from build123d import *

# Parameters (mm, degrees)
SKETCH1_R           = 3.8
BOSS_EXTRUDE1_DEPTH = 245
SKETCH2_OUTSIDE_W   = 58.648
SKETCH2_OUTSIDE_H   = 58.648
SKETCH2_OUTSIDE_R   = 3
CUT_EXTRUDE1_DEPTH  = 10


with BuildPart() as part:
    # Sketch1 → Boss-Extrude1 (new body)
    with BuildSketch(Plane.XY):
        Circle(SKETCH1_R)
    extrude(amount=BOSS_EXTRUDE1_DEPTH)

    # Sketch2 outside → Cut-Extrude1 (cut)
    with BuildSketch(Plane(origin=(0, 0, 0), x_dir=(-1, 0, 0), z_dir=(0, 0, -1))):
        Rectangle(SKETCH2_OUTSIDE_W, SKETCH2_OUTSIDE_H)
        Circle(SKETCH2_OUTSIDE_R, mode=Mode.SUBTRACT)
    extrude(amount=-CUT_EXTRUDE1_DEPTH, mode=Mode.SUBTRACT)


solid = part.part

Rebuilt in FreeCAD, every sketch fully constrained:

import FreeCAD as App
import Part
import Sketcher

V = App.Vector

doc = App.newDocument("Part")
body = doc.addObject("PartDesign::Body", "Body")

sketch1 = doc.addObject("Sketcher::SketchObject", "Sketch")
body.addObject(sketch1)
sketch1.AttachmentSupport = (doc.XY_Plane, [""])
sketch1.MapMode = "FlatFace"
sketch1.addGeometry(Part.Circle(V(0, 0, 0), V(0, 0, 1), 3.8), False)
sketch1.addConstraint(Sketcher.Constraint("Coincident", 0, 3, -1, 1))
sketch1.addConstraint(Sketcher.Constraint("Diameter", 0, 7.6))
pad1 = doc.addObject("PartDesign::Pad", "Pad")
body.addObject(pad1)
pad1.Profile = sketch1
pad1.Length = 245

sketch2 = doc.addObject("Sketcher::SketchObject", "Sketch001")
body.addObject(sketch2)
sketch2.AttachmentSupport = (doc.XY_Plane, [""])
sketch2.MapMode = "FlatFace"
sketch2.addGeometry(Part.LineSegment(V(29.324, 29.324, 0), V(29.324, -29.324, 0)), False)
sketch2.addGeometry(Part.LineSegment(V(29.324, -29.324, 0), V(-29.324, -29.324, 0)), False)
sketch2.addGeometry(Part.LineSegment(V(-29.324, -29.324, 0), V(-29.324, 29.324, 0)), False)
sketch2.addGeometry(Part.LineSegment(V(-29.324, 29.324, 0), V(29.324, 29.324, 0)), False)
sketch2.addGeometry(Part.Circle(V(0, 0, 0), V(0, 0, 1), 3), False)
sketch2.addConstraint(Sketcher.Constraint("Coincident", 0, 2, 1, 1))
sketch2.addConstraint(Sketcher.Constraint("Coincident", 1, 2, 2, 1))
sketch2.addConstraint(Sketcher.Constraint("Coincident", 2, 2, 3, 1))
sketch2.addConstraint(Sketcher.Constraint("Coincident", 3, 2, 0, 1))
sketch2.addConstraint(Sketcher.Constraint("Vertical", 0))
sketch2.addConstraint(Sketcher.Constraint("Horizontal", 1))
sketch2.addConstraint(Sketcher.Constraint("Vertical", 2))
sketch2.addConstraint(Sketcher.Constraint("Horizontal", 3))
sketch2.addConstraint(Sketcher.Constraint("Coincident", 4, 3, -1, 1))
sketch2.addConstraint(Sketcher.Constraint("Symmetric", 0, 2, 2, 2, -1, 1))
sketch2.addConstraint(Sketcher.Constraint("Equal", 3, 0))
sketch2.addConstraint(Sketcher.Constraint("Diameter", 4, 6.0))
sketch2.addConstraint(Sketcher.Constraint("DistanceX", 1, 2, 1, 1, 58.648))
pocket1 = doc.addObject("PartDesign::Pocket", "Pocket")
body.addObject(pocket1)
pocket1.Profile = sketch2
pocket1.Length = 10
pocket1.Reversed = True

doc.recompute()
